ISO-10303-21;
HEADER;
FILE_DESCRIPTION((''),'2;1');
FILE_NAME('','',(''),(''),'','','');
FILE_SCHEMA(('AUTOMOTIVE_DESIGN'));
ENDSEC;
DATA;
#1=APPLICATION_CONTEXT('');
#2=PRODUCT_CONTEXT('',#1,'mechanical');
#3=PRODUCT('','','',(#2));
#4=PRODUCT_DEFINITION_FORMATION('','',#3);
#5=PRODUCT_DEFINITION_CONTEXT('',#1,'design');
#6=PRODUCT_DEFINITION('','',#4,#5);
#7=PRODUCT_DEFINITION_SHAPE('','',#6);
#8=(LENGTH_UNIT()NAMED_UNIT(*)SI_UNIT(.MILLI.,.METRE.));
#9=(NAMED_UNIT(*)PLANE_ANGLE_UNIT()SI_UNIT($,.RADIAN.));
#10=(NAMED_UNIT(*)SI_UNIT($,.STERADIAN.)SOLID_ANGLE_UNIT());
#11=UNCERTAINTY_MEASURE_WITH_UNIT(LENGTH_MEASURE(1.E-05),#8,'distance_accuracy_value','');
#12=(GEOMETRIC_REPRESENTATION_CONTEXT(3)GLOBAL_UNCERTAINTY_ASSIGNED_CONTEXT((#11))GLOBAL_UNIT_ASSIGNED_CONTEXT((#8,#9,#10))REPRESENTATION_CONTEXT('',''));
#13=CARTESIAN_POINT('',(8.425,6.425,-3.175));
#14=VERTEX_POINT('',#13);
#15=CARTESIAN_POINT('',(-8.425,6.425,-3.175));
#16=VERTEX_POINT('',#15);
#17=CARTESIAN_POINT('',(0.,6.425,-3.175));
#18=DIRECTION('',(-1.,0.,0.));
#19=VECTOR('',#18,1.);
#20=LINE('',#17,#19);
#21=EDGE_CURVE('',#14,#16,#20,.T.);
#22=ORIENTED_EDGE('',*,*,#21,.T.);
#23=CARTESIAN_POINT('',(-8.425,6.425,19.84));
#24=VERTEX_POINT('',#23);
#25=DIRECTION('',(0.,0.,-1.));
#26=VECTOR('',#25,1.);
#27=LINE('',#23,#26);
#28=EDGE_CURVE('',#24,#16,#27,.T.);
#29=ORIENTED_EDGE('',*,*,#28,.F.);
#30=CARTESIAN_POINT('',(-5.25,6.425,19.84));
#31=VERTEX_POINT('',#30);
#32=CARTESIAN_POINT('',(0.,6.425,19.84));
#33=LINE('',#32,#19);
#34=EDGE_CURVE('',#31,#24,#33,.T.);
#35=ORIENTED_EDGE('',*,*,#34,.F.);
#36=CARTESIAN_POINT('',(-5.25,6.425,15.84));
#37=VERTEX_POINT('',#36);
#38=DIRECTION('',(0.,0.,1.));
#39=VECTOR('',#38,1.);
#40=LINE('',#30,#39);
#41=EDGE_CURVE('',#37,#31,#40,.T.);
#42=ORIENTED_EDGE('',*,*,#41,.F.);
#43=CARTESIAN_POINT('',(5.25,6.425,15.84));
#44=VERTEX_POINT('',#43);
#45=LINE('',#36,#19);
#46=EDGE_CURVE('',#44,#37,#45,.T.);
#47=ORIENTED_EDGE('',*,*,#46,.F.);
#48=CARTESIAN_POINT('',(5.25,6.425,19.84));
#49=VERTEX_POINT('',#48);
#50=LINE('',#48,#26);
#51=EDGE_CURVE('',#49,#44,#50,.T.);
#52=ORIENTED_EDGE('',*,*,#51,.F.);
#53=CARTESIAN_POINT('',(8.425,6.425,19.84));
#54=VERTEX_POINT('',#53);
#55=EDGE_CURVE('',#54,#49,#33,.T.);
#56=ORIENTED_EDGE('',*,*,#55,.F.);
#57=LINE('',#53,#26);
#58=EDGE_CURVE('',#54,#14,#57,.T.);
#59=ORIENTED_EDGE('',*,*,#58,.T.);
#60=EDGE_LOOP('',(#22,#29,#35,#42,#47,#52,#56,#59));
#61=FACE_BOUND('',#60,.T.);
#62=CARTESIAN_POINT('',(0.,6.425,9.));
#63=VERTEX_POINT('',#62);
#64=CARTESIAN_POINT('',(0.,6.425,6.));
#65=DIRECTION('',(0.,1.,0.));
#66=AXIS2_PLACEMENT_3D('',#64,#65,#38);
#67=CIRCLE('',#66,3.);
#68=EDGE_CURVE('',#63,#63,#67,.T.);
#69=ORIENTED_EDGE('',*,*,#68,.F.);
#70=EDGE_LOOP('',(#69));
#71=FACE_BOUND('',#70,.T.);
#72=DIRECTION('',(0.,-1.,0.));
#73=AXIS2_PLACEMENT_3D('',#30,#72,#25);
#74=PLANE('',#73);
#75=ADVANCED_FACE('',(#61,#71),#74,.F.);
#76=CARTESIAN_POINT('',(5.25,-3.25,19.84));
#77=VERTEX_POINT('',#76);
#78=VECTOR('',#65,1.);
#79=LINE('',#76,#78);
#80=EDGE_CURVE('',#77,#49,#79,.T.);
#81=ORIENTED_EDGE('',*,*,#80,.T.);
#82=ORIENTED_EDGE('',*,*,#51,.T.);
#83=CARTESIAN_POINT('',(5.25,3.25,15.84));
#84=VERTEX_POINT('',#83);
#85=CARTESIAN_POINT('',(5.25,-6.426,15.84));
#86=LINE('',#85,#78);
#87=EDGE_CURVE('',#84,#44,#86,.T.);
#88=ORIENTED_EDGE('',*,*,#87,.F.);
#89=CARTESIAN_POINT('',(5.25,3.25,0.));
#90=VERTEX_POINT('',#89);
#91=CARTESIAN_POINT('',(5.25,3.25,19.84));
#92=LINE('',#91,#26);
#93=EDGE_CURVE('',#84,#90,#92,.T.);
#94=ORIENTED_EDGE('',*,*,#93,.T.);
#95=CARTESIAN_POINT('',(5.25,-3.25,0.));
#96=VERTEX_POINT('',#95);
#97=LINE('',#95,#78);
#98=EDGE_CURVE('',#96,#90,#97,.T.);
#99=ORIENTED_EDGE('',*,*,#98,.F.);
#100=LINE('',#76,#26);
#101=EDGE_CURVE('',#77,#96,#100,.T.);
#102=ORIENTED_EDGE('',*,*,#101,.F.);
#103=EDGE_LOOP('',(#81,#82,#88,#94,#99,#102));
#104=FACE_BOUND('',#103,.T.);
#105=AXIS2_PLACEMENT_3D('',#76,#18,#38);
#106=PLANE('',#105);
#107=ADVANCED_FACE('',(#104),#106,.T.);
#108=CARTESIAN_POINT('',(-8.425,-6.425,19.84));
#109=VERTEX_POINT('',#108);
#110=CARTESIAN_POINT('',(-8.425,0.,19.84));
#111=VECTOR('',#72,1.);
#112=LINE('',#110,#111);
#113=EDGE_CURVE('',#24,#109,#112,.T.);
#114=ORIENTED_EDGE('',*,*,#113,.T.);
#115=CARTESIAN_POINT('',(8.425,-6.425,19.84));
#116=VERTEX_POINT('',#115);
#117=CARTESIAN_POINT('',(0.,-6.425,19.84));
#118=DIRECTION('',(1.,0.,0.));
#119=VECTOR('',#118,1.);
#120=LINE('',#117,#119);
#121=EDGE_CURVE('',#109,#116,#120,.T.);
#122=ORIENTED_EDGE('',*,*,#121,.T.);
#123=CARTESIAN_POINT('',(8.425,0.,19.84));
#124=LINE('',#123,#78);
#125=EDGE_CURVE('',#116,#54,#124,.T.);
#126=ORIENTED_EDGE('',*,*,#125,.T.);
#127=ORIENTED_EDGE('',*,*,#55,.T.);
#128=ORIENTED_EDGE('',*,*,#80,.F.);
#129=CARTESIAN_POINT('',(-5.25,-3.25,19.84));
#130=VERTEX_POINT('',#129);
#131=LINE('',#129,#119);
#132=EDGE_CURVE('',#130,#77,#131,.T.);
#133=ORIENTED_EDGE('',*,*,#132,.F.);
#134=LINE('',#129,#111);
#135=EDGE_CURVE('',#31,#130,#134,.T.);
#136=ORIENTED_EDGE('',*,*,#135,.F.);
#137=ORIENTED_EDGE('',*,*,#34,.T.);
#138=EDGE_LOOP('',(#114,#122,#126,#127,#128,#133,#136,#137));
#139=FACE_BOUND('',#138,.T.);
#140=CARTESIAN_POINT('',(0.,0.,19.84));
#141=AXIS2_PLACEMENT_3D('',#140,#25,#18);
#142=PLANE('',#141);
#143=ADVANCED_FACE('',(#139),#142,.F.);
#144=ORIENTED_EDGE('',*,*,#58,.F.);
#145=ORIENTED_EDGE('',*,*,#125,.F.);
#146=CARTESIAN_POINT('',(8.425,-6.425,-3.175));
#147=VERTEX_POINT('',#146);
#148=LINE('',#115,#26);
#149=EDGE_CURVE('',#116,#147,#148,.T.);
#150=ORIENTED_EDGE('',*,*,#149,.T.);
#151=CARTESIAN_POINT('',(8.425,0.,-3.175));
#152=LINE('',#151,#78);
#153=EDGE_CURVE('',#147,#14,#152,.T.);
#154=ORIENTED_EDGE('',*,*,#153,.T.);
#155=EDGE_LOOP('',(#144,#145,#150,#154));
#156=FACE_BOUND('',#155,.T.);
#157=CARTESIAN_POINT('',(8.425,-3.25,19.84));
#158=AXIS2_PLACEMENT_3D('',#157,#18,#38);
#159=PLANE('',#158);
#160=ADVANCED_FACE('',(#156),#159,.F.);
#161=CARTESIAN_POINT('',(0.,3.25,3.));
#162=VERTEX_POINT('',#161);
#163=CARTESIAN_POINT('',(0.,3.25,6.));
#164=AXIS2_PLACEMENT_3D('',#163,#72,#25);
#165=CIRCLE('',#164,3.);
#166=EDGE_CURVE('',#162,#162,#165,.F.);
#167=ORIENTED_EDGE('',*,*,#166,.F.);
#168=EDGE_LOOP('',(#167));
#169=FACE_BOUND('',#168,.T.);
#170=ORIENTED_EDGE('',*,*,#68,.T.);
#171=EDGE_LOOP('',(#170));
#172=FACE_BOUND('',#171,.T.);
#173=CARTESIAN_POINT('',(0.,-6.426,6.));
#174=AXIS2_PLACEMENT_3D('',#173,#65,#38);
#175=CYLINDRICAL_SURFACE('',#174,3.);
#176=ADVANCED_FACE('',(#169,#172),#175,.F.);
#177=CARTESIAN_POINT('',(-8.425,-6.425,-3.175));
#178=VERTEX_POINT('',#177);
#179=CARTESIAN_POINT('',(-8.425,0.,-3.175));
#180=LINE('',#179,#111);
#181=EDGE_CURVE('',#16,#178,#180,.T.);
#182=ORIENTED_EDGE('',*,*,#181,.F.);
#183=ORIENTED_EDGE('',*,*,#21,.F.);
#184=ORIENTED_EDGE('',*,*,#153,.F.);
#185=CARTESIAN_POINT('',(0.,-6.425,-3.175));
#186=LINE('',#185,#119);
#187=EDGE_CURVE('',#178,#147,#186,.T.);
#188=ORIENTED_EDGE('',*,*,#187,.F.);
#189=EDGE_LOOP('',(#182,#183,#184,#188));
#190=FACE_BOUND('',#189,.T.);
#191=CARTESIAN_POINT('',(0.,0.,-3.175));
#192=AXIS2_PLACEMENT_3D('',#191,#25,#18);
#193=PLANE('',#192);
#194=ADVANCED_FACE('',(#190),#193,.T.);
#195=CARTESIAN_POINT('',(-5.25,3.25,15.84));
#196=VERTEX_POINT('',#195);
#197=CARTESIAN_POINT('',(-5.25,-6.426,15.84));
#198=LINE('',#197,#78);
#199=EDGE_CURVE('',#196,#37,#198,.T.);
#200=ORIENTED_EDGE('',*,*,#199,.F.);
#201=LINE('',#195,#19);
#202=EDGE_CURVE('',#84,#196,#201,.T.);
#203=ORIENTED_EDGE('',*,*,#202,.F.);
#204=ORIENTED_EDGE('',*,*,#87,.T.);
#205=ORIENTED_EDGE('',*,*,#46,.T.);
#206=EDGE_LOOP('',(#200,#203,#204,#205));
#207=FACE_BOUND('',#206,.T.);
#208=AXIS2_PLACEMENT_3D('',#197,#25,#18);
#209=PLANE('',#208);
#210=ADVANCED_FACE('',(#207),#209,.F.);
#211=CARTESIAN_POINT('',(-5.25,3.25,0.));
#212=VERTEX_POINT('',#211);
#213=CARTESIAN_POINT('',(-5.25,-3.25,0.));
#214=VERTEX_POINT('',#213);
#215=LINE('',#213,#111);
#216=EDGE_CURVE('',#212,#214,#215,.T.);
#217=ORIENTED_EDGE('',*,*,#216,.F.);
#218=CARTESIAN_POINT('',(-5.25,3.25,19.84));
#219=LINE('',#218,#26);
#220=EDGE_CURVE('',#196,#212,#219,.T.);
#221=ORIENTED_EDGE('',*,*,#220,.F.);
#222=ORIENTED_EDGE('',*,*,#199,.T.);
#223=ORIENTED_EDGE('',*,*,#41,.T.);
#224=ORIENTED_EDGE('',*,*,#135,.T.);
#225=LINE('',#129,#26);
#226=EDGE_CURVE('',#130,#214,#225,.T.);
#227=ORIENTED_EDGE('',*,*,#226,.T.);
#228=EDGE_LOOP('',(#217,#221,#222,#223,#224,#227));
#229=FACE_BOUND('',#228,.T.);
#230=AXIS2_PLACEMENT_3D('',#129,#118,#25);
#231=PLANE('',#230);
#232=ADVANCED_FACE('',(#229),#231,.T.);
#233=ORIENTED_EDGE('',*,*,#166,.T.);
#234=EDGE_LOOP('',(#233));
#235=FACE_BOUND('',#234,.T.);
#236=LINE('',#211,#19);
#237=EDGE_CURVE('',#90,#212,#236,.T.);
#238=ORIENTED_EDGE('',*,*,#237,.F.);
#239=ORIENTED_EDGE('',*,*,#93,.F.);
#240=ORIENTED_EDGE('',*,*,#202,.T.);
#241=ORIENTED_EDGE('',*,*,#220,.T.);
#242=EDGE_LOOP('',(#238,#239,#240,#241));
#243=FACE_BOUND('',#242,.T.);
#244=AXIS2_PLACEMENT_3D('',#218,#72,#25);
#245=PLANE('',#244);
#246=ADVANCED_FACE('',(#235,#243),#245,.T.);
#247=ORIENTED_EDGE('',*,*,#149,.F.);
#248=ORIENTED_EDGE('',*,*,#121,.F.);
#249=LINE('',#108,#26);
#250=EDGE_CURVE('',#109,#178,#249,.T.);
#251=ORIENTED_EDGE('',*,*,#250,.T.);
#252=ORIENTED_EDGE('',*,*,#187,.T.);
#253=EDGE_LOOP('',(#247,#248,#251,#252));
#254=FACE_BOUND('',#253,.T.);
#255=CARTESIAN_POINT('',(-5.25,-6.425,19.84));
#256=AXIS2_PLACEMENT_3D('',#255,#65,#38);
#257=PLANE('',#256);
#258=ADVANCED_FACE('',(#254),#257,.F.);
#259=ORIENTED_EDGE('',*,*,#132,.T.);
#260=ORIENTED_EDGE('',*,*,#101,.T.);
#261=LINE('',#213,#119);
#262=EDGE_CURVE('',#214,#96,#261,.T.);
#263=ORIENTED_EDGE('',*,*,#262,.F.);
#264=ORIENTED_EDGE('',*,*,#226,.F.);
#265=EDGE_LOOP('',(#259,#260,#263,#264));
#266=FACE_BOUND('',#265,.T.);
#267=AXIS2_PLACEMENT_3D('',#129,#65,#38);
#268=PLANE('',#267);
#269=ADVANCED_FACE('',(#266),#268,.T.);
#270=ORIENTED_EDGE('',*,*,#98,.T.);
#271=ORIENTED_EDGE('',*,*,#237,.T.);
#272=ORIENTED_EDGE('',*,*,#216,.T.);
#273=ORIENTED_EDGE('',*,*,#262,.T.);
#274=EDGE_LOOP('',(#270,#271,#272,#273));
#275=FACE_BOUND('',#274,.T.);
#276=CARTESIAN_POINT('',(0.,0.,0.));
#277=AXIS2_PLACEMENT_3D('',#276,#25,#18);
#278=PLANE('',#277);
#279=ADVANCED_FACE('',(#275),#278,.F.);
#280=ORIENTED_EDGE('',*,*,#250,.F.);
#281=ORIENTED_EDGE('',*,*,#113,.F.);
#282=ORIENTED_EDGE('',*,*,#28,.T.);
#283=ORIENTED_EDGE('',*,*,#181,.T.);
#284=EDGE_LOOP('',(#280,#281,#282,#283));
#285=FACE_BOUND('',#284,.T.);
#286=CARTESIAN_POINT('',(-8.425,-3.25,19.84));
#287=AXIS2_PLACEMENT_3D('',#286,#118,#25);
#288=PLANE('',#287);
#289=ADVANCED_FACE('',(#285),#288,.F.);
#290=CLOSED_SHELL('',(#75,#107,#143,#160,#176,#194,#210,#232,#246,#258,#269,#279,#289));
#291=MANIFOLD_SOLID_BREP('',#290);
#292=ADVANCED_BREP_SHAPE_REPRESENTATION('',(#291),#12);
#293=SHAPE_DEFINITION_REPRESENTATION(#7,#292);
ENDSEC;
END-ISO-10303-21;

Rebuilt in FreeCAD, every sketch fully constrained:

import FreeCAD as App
import Part
import Sketcher
from FreeCAD import Vector
Q = App.Units.Quantity


def faces_at(feature, points):
    """Names of the faces that lie closest to the given points."""
    faces = feature.Shape.Faces
    near = lambda p: min(range(len(faces)), key=lambda i: faces[i].distToShape(Part.Vertex(*p))[0])
    return sorted({f"Face{near(p) + 1}" for p in points})

doc = App.newDocument("Part")
body = doc.addObject("PartDesign::Body", "Body")

# Sketch on XY plane
sketch1 = body.newObject("Sketcher::SketchObject", "Sketch")
sketch1.AttachmentSupport = (doc.getObject("XY_Plane"), [""])
sketch1.MapMode = "FlatFace"
sketch1.addGeometry(Part.LineSegment(Vector(-5, 3, 0), Vector(-5, -3, 0)), False)
sketch1.addGeometry(Part.LineSegment(Vector(-5, -3, 0), Vector(5, -3, 0)), False)
sketch1.addGeometry(Part.LineSegment(Vector(5, -3, 0), Vector(5, 3, 0)), False)
sketch1.addGeometry(Part.LineSegment(Vector(5, 3, 0), Vector(-5, 3, 0)), False)
sketch1.addConstraint(Sketcher.Constraint("Coincident", 0, 2, 1, 1))
sketch1.addConstraint(Sketcher.Constraint("Coincident", 1, 2, 2, 1))
sketch1.addConstraint(Sketcher.Constraint("Coincident", 2, 2, 3, 1))
sketch1.addConstraint(Sketcher.Constraint("Coincident", 3, 2, 0, 1))
sketch1.addConstraint(Sketcher.Constraint("Vertical", 0))
sketch1.addConstraint(Sketcher.Constraint("Horizontal", 1))
sketch1.addConstraint(Sketcher.Constraint("Vertical", 2))
sketch1.addConstraint(Sketcher.Constraint("Horizontal", 3))
sketch1.addConstraint(Sketcher.Constraint("Symmetric", 0, 2, 2, 2, -1, 1))
sketch1.addConstraint(Sketcher.Constraint("DistanceX", 1, 1, 1, 2, Q("10.5 mm")))
sketch1.addConstraint(Sketcher.Constraint("DistanceY", 0, 2, 0, 1, Q("6.5 mm")))
pad1 = body.newObject("PartDesign::Pad", "Pad")
pad1.Profile = sketch1
pad1.Length = 19.84
doc.recompute()

thickness = body.newObject("PartDesign::Thickness", "Thickness")
thickness.Base = (pad1, faces_at(pad1, [(0, 0, 19.84)]))
thickness.Value = 3.175
thickness.Reversed = False
thickness.Join = "Intersection"

# Sketch on XZ plane
sketch2 = body.newObject("Sketcher::SketchObject", "Sketch001")
sketch2.AttachmentSupport = (doc.getObject("XZ_Plane"), [""])
sketch2.MapMode = "FlatFace"
sketch2.AttachmentOffset = App.Placement(Vector(0, 0, -6.425), App.Rotation())
sketch2.addGeometry(Part.Circle(Vector(0, 6, 0), Vector(0, 0, 1), 3), False)
sketch2.addConstraint(Sketcher.Constraint("PointOnObject", 0, 3, -2))
sketch2.addConstraint(Sketcher.Constraint("Diameter", 0, Q("6 mm")))
sketch2.addConstraint(Sketcher.Constraint("DistanceY", -1, 1, 0, 3, Q("6 mm")))
pocket1 = body.newObject("PartDesign::Pocket", "Pocket")
pocket1.Profile = sketch2
pocket1.Type = "UpToFirst"
pocket1.Reversed = True

# Sketch on XZ plane
sketch3 = body.newObject("Sketcher::SketchObject", "Sketch002")
sketch3.AttachmentSupport = (doc.getObject("XZ_Plane"), [""])
sketch3.MapMode = "FlatFace"
sketch3.AttachmentOffset = App.Placement(Vector(0, 0, -6.425), App.Rotation())
sketch3.addGeometry(Part.LineSegment(Vector(-5.2, 15.8, 0), Vector(-5.2, 19.8, 0)), False)
sketch3.addGeometry(Part.LineSegment(Vector(-5.2, 19.8, 0), Vector(5.2, 19.8, 0)), False)
sketch3.addGeometry(Part.LineSegment(Vector(5.2, 19.8, 0), Vector(5.2, 15.8, 0)), False)
sketch3.addGeometry(Part.LineSegment(Vector(5.2, 15.8, 0), Vector(-5.2, 15.8, 0)), False)
sketch3.addConstraint(Sketcher.Constraint("Coincident", 0, 2, 1, 1))
sketch3.addConstraint(Sketcher.Constraint("Coincident", 1, 2, 2, 1))
sketch3.addConstraint(Sketcher.Constraint("Coincident", 2, 2, 3, 1))
sketch3.addConstraint(Sketcher.Constraint("Coincident", 3, 2, 0, 1))
sketch3.addConstraint(Sketcher.Constraint("Vertical", 0))
sketch3.addConstraint(Sketcher.Constraint("Horizontal", 1))
sketch3.addConstraint(Sketcher.Constraint("Vertical", 2))
sketch3.addConstraint(Sketcher.Constraint("Horizontal", 3))
sketch3.addConstraint(Sketcher.Constraint("DistanceY", 0, 1, 0, 2, Q("4 mm")))
sketch3.addConstraint(Sketcher.Constraint("DistanceX", 1, 1, 1, 2, Q("10.5 mm")))
sketch3.addConstraint(Sketcher.Constraint("DistanceX", 0, 2, -1, 1, Q("5.25 mm")))
sketch3.addConstraint(Sketcher.Constraint("DistanceY", -1, 1, 0, 2, Q("19.84 mm")))
pocket2 = body.newObject("PartDesign::Pocket", "Pocket001")
pocket2.Profile = sketch3
pocket2.Type = "UpToFirst"
pocket2.Reversed = True

doc.recompute()
